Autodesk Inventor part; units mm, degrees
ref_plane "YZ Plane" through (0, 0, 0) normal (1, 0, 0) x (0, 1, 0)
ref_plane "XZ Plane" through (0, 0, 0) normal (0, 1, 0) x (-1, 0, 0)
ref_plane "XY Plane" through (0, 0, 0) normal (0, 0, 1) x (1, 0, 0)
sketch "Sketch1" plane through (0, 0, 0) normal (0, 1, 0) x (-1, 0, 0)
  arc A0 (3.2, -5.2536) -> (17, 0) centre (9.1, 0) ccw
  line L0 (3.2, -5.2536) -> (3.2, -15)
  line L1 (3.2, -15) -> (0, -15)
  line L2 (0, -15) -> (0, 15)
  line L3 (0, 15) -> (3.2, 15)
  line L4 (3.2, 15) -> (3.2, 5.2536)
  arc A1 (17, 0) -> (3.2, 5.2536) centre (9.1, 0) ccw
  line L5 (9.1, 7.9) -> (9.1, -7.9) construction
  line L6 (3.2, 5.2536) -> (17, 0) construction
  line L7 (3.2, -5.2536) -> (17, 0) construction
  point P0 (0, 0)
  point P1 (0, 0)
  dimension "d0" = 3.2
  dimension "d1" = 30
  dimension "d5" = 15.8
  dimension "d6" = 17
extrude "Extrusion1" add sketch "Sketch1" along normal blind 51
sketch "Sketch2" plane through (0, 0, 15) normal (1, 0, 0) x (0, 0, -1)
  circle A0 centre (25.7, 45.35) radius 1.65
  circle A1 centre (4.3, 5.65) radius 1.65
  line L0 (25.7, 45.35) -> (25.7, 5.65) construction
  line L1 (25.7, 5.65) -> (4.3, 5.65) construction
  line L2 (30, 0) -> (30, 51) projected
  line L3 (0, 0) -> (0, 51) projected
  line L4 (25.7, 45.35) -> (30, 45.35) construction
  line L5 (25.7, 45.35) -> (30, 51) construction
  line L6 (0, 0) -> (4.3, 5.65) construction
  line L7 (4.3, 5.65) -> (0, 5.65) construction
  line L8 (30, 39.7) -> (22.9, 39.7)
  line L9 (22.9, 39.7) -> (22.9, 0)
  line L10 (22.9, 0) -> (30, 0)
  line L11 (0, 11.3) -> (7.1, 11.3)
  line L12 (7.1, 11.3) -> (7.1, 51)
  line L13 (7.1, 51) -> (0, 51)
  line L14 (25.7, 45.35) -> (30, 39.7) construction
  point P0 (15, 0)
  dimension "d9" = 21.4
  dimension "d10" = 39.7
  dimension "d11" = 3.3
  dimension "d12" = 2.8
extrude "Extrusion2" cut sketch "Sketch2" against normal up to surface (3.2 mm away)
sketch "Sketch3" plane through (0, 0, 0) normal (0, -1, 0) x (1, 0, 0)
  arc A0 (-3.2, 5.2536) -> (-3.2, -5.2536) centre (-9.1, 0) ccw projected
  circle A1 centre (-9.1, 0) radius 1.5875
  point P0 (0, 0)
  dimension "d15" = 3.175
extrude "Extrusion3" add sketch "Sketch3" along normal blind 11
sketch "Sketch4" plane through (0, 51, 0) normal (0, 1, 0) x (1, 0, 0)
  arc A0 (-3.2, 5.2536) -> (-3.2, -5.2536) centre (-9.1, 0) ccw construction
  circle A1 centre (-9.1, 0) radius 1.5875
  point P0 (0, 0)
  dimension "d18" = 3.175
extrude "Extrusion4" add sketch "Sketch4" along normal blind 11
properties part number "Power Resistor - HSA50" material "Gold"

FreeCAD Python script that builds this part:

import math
import FreeCAD as App
import Part
import Sketcher

doc = App.newDocument("Part")
params = doc.addObject("Spreadsheet::Sheet", "Params")
for row, (alias, value) in enumerate([
    ("sketch1_radius", "7.9 mm"),
    ("sketch1_height", "30 mm"),
    ("sketch1_width", "3.2 mm"),
    ("pad1_length", "51 mm"),
    ("sketch2_diameter", "3.3 mm"),
    ("sketch2_width", "39.7 mm"),
    ("sketch2_height", "7.1 mm"),
    ("pocket1_length", "3.2 mm"),
    ("pad2_length", "11 mm"),
    ("pad3_length", "11 mm"),
], start=1):
    params.set(f"A{row}", alias)
    params.set(f"B{row}", "=" + value)
    params.setAlias(f"B{row}", alias)

body = doc.addObject("PartDesign::Body", "Body")

# Sketch on XZ plane
sketch1 = body.newObject("Sketcher::SketchObject", "Sketch")
sketch1.AttachmentSupport = (doc.getObject("XZ_Plane"), [""])
sketch1.MapMode = "FlatFace"
sketch1.addGeometry(Part.LineSegment(App.Vector(-3.2, -15, 0), App.Vector(-3.2, -5.3, 0)), False)
sketch1.addGeometry(Part.ArcOfCircle(Part.Circle(App.Vector(-9.1, 0, 0), App.Vector(0, 0, 1), 7.9), math.radians(180), math.radians(318)), False)
sketch1.addGeometry(Part.ArcOfCircle(Part.Circle(App.Vector(-9.1, 0, 0), App.Vector(0, 0, 1), 7.9), math.radians(42), math.radians(180)), False)
sketch1.addGeometry(Part.LineSegment(App.Vector(-3.2, 5.3, 0), App.Vector(-3.2, 15, 0)), False)
sketch1.addGeometry(Part.LineSegment(App.Vector(-3.2, 15, 0), App.Vector(0, 15, 0)), False)
sketch1.addGeometry(Part.LineSegment(App.Vector(0, 15, 0), App.Vector(0, -15, 0)), False)
sketch1.addGeometry(Part.LineSegment(App.Vector(0, -15, 0), App.Vector(-3.2, -15, 0)), False)
sketch1.addConstraint(Sketcher.Constraint("Coincident", 0, 2, 1, 2))
sketch1.addConstraint(Sketcher.Constraint("Tangent", 1, 1, 2, 2))
sketch1.addConstraint(Sketcher.Constraint("Coincident", 2, 1, 3, 1))
sketch1.addConstraint(Sketcher.Constraint("Coincident", 3, 2, 4, 1))
sketch1.addConstraint(Sketcher.Constraint("Coincident", 4, 2, 5, 1))
sketch1.addConstraint(Sketcher.Constraint("Coincident", 5, 2, 6, 1))
sketch1.addConstraint(Sketcher.Constraint("Coincident", 6, 2, 0, 1))
sketch1.addConstraint(Sketcher.Constraint("Vertical", 0))
sketch1.addConstraint(Sketcher.Constraint("Vertical", 3))
sketch1.addConstraint(Sketcher.Constraint("Horizontal", 4))
sketch1.addConstraint(Sketcher.Constraint("Vertical", 5))
sketch1.addConstraint(Sketcher.Constraint("Horizontal", 6))
sketch1.addConstraint(Sketcher.Constraint("Equal", 1, 2))
sketch1.addConstraint(Sketcher.Constraint("Symmetric", 4, 2, 5, 2, -1, 1))
sketch1.addConstraint(Sketcher.Constraint("Symmetric", 0, 2, 2, 1, -1))
sketch1.addConstraint(Sketcher.Constraint("PointOnObject", 1, 1, -1))
sketch1.addConstraint(Sketcher.Constraint("Radius", 1, 7.9))
sketch1.addConstraint(Sketcher.Constraint("DistanceY", 5, 2, 5, 1, 30.0))
sketch1.addConstraint(Sketcher.Constraint("DistanceX", 4, 1, 4, 2, 3.2))
sketch1.addConstraint(Sketcher.Constraint("DistanceX", 1, 1, -1, 1, 17.0))
sketch1.setExpression("Constraints[16]", "Params.sketch1_radius")
sketch1.setExpression("Constraints[17]", "Params.sketch1_height")
sketch1.setExpression("Constraints[18]", "Params.sketch1_width")
pad1 = body.newObject("PartDesign::Pad", "Pad")
pad1.Profile = sketch1
pad1.setExpression("Length", "Params.pad1_length")
pad1.Reversed = True

# Sketch on YZ plane
sketch2 = body.newObject("Sketcher::SketchObject", "Sketch001")
sketch2.AttachmentSupport = (doc.getObject("YZ_Plane"), [""])
sketch2.MapMode = "FlatFace"
sketch2.addGeometry(Part.Circle(App.Vector(45.4, -10.7, 0), App.Vector(0, 0, 1), 1.6), False)
sketch2.addGeometry(Part.Circle(App.Vector(5.7, 10.7, 0), App.Vector(0, 0, 1), 1.6), False)
sketch2.addGeometry(Part.LineSegment(App.Vector(0, -7.9, 0), App.Vector(0, -15, 0)), False)
sketch2.addGeometry(Part.LineSegment(App.Vector(0, -15, 0), App.Vector(39.7, -15, 0)), False)
sketch2.addGeometry(Part.LineSegment(App.Vector(39.7, -15, 0), App.Vector(39.7, -7.9, 0)), False)
sketch2.addGeometry(Part.LineSegment(App.Vector(39.7, -7.9, 0), App.Vector(0, -7.9, 0)), False)
sketch2.addGeometry(Part.LineSegment(App.Vector(51, 15, 0), App.Vector(11.3, 15, 0)), False)
sketch2.addGeometry(Part.LineSegment(App.Vector(11.3, 15, 0), App.Vector(11.3, 7.9, 0)), False)
sketch2.addGeometry(Part.LineSegment(App.Vector(11.3, 7.9, 0), App.Vector(51, 7.9, 0)), False)
sketch2.addGeometry(Part.LineSegment(App.Vector(51, 7.9, 0), App.Vector(51, 15, 0)), False)
sketch2.addConstraint(Sketcher.Constraint("Coincident", 2, 2, 3, 1))
sketch2.addConstraint(Sketcher.Constraint("Coincident", 3, 2, 4, 1))
sketch2.addConstraint(Sketcher.Constraint("Coincident", 4, 2, 5, 1))
sketch2.addConstraint(Sketcher.Constraint("Coincident", 5, 2, 2, 1))
sketch2.addConstraint(Sketcher.Constraint("Coincident", 6, 2, 7, 1))
sketch2.addConstraint(Sketcher.Constraint("Coincident", 7, 2, 8, 1))
sketch2.addConstraint(Sketcher.Constraint("Coincident", 8, 2, 9, 1))
sketch2.addConstraint(Sketcher.Constraint("Coincident", 9, 2, 6, 1))
sketch2.addConstraint(Sketcher.Constraint("Vertical", 2))
sketch2.addConstraint(Sketcher.Constraint("Horizontal", 3))
sketch2.addConstraint(Sketcher.Constraint("Vertical", 4))
sketch2.addConstraint(Sketcher.Constraint("Horizontal", 5))
sketch2.addConstraint(Sketcher.Constraint("Horizontal", 6))
sketch2.addConstraint(Sketcher.Constraint("Vertical", 7))
sketch2.addConstraint(Sketcher.Constraint("Horizontal", 8))
sketch2.addConstraint(Sketcher.Constraint("Vertical", 9))
sketch2.addConstraint(Sketcher.Constraint("Equal", 0, 1))
sketch2.addConstraint(Sketcher.Constraint("PointOnObject", 2, 2, -2))
sketch2.addConstraint(Sketcher.Constraint("Equal", 5, 6))
sketch2.addConstraint(Sketcher.Constraint("Equal", 4, 7))
sketch2.addConstraint(Sketcher.Constraint("Diameter", 0, 3.3))
sketch2.addConstraint(Sketcher.Constraint("DistanceX", 3, 1, 3, 2, 39.7))
sketch2.addConstraint(Sketcher.Constraint("DistanceX", 1, 3, 0, 3, 39.7))
sketch2.addConstraint(Sketcher.Constraint("DistanceY", 0, 3, 1, 3, 21.4))
sketch2.addConstraint(Sketcher.Constraint("DistanceY", 0, 3, 4, 2, 2.8))
sketch2.addConstraint(Sketcher.Constraint("DistanceY", 7, 2, 1, 3, 2.8))
sketch2.addConstraint(Sketcher.Constraint("DistanceY", 2, 2, 2, 1, 7.1))
sketch2.addConstraint(Sketcher.Constraint("DistanceY", 2, 2, -1, 1, 15.0))
sketch2.addConstraint(Sketcher.Constraint("DistanceX", -1, 1, 8, 2, 51.0))
sketch2.addConstraint(Sketcher.Constraint("DistanceX", -1, 1, 0, 3, 45.35))
sketch2.setExpression("Constraints[20]", "Params.sketch2_diameter")
sketch2.setExpression("Constraints[21]", "Params.sketch2_width")
sketch2.setExpression("Constraints[26]", "Params.sketch2_height")
pocket1 = body.newObject("PartDesign::Pocket", "Pocket")
pocket1.Profile = sketch2
pocket1.setExpression("Length", "Params.pocket1_length")

# Sketch on XZ plane
sketch3 = body.newObject("Sketcher::SketchObject", "Sketch002")
sketch3.AttachmentSupport = (doc.getObject("XZ_Plane"), [""])
sketch3.MapMode = "FlatFace"
sketch3.addGeometry(Part.Circle(App.Vector(-9.1, 0, 0), App.Vector(0, 0, 1), 1.6), False)
sketch3.addConstraint(Sketcher.Constraint("PointOnObject", 0, 3, -1))
sketch3.addConstraint(Sketcher.Constraint("Diameter", 0, 3.175))
sketch3.addConstraint(Sketcher.Constraint("DistanceX", 0, 3, -1, 1, 9.1))
pad2 = body.newObject("PartDesign::Pad", "Pad001")
pad2.Profile = sketch3
pad2.setExpression("Length", "Params.pad2_length")

# Sketch on XZ plane
sketch4 = body.newObject("Sketcher::SketchObject", "Sketch003")
sketch4.AttachmentSupport = (doc.getObject("XZ_Plane"), [""])
sketch4.MapMode = "FlatFace"
sketch4.AttachmentOffset = App.Placement(App.Vector(0, 0, -51), App.Rotation())
sketch4.addGeometry(Part.Circle(App.Vector(-9.1, 0, 0), App.Vector(0, 0, 1), 1.6), False)
sketch4.addConstraint(Sketcher.Constraint("PointOnObject", 0, 3, -1))
sketch4.addConstraint(Sketcher.Constraint("Diameter", 0, 3.175))
sketch4.addConstraint(Sketcher.Constraint("DistanceX", 0, 3, -1, 1, 9.1))
pad3 = body.newObject("PartDesign::Pad", "Pad002")
pad3.Profile = sketch4
pad3.setExpression("Length", "Params.pad3_length")
pad3.Reversed = True

doc.recompute()
